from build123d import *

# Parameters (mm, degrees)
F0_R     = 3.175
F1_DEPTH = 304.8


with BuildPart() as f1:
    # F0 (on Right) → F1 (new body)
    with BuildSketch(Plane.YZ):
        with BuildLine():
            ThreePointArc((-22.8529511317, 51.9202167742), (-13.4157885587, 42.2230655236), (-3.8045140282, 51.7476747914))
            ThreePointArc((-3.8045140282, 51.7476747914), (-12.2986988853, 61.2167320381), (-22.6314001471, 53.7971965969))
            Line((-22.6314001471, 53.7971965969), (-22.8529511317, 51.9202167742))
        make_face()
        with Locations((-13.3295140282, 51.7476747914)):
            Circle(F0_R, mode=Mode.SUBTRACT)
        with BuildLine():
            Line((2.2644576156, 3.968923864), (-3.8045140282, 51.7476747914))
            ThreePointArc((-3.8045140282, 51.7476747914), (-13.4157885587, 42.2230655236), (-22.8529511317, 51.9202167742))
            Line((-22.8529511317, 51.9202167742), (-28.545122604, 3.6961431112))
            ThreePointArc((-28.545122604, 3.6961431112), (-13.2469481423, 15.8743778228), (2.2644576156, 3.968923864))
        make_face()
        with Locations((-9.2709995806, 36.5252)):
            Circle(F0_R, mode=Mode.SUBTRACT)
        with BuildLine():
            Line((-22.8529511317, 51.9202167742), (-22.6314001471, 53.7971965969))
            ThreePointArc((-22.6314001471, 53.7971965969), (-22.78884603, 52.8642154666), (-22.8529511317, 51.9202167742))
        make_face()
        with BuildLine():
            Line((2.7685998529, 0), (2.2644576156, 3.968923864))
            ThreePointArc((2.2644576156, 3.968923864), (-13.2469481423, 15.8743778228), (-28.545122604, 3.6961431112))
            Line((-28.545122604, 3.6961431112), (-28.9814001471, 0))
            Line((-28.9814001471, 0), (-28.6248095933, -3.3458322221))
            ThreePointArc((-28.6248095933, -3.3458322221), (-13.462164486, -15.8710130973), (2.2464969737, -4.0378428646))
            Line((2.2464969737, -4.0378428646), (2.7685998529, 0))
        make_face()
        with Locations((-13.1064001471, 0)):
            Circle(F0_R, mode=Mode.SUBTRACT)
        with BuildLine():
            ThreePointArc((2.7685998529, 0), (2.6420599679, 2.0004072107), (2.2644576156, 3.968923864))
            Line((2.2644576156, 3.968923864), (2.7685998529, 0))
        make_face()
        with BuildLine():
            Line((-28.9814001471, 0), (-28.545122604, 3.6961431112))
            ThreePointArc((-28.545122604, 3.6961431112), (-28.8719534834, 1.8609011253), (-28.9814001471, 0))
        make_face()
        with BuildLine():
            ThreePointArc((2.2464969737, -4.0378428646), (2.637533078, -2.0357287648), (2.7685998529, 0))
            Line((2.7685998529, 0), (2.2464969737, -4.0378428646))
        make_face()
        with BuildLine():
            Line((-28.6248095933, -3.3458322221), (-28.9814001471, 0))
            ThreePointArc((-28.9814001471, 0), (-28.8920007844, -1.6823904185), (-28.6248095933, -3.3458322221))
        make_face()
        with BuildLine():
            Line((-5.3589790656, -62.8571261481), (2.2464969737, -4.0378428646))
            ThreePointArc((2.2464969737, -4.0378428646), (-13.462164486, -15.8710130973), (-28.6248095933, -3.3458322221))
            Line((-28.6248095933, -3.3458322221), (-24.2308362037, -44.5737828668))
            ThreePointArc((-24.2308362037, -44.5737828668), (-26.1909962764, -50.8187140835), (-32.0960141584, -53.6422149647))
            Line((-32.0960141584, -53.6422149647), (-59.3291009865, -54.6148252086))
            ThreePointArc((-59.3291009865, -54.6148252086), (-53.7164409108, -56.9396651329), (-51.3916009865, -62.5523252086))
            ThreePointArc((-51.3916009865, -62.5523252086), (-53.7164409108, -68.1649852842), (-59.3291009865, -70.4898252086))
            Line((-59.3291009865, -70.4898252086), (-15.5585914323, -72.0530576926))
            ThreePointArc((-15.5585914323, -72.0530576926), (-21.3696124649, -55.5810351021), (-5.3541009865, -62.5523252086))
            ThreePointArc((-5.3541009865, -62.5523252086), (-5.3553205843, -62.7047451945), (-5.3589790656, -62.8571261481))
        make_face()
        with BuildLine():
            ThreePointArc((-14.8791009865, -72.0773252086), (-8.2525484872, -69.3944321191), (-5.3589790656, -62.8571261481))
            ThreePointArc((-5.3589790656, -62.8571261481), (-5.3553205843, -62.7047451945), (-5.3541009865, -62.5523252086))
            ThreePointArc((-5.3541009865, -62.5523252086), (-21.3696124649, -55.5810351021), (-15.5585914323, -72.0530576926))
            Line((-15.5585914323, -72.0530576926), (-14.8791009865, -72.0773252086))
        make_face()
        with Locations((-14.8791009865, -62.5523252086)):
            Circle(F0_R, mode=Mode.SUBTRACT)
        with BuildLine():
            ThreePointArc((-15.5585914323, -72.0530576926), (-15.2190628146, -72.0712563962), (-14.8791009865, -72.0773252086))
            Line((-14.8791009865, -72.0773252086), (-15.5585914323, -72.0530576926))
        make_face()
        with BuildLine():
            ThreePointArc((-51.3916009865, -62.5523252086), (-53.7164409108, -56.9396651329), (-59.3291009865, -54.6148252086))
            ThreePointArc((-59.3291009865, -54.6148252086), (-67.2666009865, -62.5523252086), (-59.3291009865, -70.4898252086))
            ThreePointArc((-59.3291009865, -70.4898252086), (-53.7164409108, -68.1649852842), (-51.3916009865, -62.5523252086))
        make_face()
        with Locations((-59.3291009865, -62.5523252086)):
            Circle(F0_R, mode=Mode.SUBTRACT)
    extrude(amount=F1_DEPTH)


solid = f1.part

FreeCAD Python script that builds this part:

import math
import FreeCAD as App
import Part
import Sketcher

V = App.Vector
Q = App.Units.Quantity

doc = App.newDocument("Part")
body = doc.addObject("PartDesign::Body", "Body")

sketch1 = body.newObject("Sketcher::SketchObject", "Sketch")
sketch1.AttachmentSupport = (doc.getObject("YZ_Plane"), [""])
sketch1.MapMode = "FlatFace"
sketch1.addGeometry([
    Part.ArcOfCircle(Part.Circle(V(-13.329514, 51.747675, 0), V(0, 0, 1), 9.525), math.radians(0), math.radians(167.574329)),
    Part.ArcOfCircle(Part.Circle(V(-13.329514, 51.747675, 0), V(0, 0, 1), 9.525), math.radians(167.574329), math.radians(178.962051)),
    Part.LineSegment(V(-22.852951, 51.920217, 0), V(-28.545123, 3.696143, 0)),
    Part.ArcOfCircle(Part.Circle(V(-13.1064, 0, 0), V(0, 0, 1), 15.875), math.radians(166.53638), math.radians(180)),
    Part.ArcOfCircle(Part.Circle(V(-13.1064, 0, 0), V(0, 0, 1), 15.875), math.radians(180), math.radians(192.166957)),
    Part.LineSegment(V(-28.62481, -3.345832, 0), V(-24.230836, -44.573783, 0)),
    Part.ArcOfCircle(Part.Circle(V(-32.388835, -45.443242, 0), V(0, 0, 1), 8.2042), math.radians(-87.954592), math.radians(6.083479)),
    Part.LineSegment(V(-32.096014, -53.642215, 0), V(-59.329101, -54.614825, 0)),
    Part.ArcOfCircle(Part.Circle(V(-59.329101, -62.552325, 0), V(0, 0, 1), 7.9375), math.radians(90), math.radians(270)),
    Part.LineSegment(V(-59.329101, -70.489825, 0), V(-15.558591, -72.053058, 0)),
    Part.ArcOfCircle(Part.Circle(V(-14.879101, -62.552325, 0), V(0, 0, 1), 9.525), math.radians(-94.090817), math.radians(-90)),
    Part.ArcOfCircle(Part.Circle(V(-14.879101, -62.552325, 0), V(0, 0, 1), 9.525), math.radians(-90), math.radians(-1.833784)),
    Part.LineSegment(V(-5.358979, -62.857126, 0), V(2.246497, -4.037843, 0)),
    Part.ArcOfCircle(Part.Circle(V(-13.1064, 0, 0), V(0, 0, 1), 15.875), math.radians(-14.73521), math.radians(0)),
    Part.ArcOfCircle(Part.Circle(V(-13.1064, 0, 0), V(0, 0, 1), 15.875), math.radians(0), math.radians(14.47816)),
    Part.LineSegment(V(2.264458, 3.968924, 0), V(-3.804514, 51.747675, 0)),
    Part.Circle(V(-59.329101, -62.552325, 0), V(0, 0, 1), 3.175),
    Part.Circle(V(-14.879101, -62.552325, 0), V(0, 0, 1), 3.175),
    Part.Circle(V(-13.1064, 0, 0), V(0, 0, 1), 3.175),
    Part.Circle(V(-9.271, 36.5252, 0), V(0, 0, 1), 3.175),
    Part.Circle(V(-13.329514, 51.747675, 0), V(0, 0, 1), 3.175),
], False)
sketch1.addConstraint([
    Sketcher.Constraint("Coincident", 0, 2, 1, 1),
    Sketcher.Constraint("Coincident", 1, 2, 2, 1),
    Sketcher.Constraint("Coincident", 2, 2, 3, 1),
    Sketcher.Constraint("Coincident", 3, 2, 4, 1),
    Sketcher.Constraint("Coincident", 4, 2, 5, 1),
    Sketcher.Constraint("Coincident", 5, 2, 6, 2),
    Sketcher.Constraint("Coincident", 6, 1, 7, 1),
    Sketcher.Constraint("Coincident", 7, 2, 8, 1),
    Sketcher.Constraint("Coincident", 8, 2, 9, 1),
    Sketcher.Constraint("Coincident", 9, 2, 10, 1),
    Sketcher.Constraint("Coincident", 10, 2, 11, 1),
    Sketcher.Constraint("Coincident", 11, 2, 12, 1),
    Sketcher.Constraint("Coincident", 12, 2, 13, 1),
    Sketcher.Constraint("Coincident", 13, 2, 14, 1),
    Sketcher.Constraint("Coincident", 14, 2, 15, 1),
    Sketcher.Constraint("Coincident", 15, 2, 0, 1),
    Sketcher.Constraint("Coincident", 1, 3, 0, 3),
    Sketcher.Constraint("Coincident", 4, 3, 3, 3),
    Sketcher.Constraint("Coincident", 11, 3, 10, 3),
    Sketcher.Constraint("Coincident", 13, 3, 3, 3),
    Sketcher.Constraint("Coincident", 14, 3, 3, 3),
    Sketcher.Constraint("Coincident", 16, 3, 8, 3),
    Sketcher.Constraint("Coincident", 17, 3, 10, 3),
    Sketcher.Constraint("Coincident", 18, 3, 3, 3),
    Sketcher.Constraint("Coincident", 20, 3, 0, 3),
    Sketcher.Constraint("PointOnObject", 3, 3, -1),
    Sketcher.Constraint("PointOnObject", 3, 2, -1),
    Sketcher.Constraint("PointOnObject", 13, 2, -1),
    Sketcher.Constraint("Diameter", 16, Q("0.25 in")),
    Sketcher.Constraint("Diameter", 17, Q("0.25 in")),
    Sketcher.Constraint("Diameter", 18, Q("0.25 in")),
    Sketcher.Constraint("Diameter", 19, Q("0.25 in")),
    Sketcher.Constraint("Diameter", 20, Q("0.25 in")),
    Sketcher.Constraint("Radius", 0, Q("0.375 in")),
    Sketcher.Constraint("Radius", 3, Q("0.625 in")),
    Sketcher.Constraint("Radius", 6, Q("0.323 in")),
    Sketcher.Constraint("Radius", 8, Q("0.3125 in")),
    Sketcher.Constraint("Radius", 10, Q("0.375 in")),
    Sketcher.Constraint("Radius", 13, Q("0.625 in")),
    Sketcher.Constraint("DistanceY", 8, 3, 0, 3, Q("4.5 in")),
    Sketcher.Constraint("DistanceY", 10, 3, 0, 3, Q("4.5 in")),
    Sketcher.Constraint("DistanceX", 8, 3, 10, 3, Q("1.75 in")),
    Sketcher.Constraint("DistanceY", 19, 3, 0, 2, Q("0.6799999 in")),
    Sketcher.Constraint("DistanceX", 3, 3, -1, 1, Q("0.516 in")),
    Sketcher.Constraint("DistanceX", 19, 3, -1, 1, Q("0.365 in")),
    Sketcher.Constraint("DistanceY", -1, 1, 19, 3, Q("1.438 in")),
    Sketcher.Constraint("DistanceX", 0, 2, -1, 1, Q("0.891 in")),
    Sketcher.Constraint("DistanceY", 11, 2, 10, 3, Q("0.012 in")),
    Sketcher.Constraint("DistanceX", 8, 3, -1, 1, 59.329101),
    Sketcher.Constraint("DistanceX", 7, 2, -1, 1, 59.329101),
    Sketcher.Constraint("DistanceX", 8, 2, -1, 1, 59.329101),
    Sketcher.Constraint("DistanceX", 10, 2, -1, 1, 14.879101),
    Sketcher.Constraint("DistanceX", 6, 3, 5, 2, 8.157998),
    Sketcher.Constraint("Distance", 2, 48.558852),
    Sketcher.Constraint("Distance", 5, 41.461439),
    Sketcher.Constraint("Distance", 7, 27.250449),
    Sketcher.Constraint("Distance", 12, 59.308948),
    Sketcher.Constraint("DistanceX", 1, 2, -1, 1, 22.852951),
    Sketcher.Constraint("DistanceX", 4, 2, -1, 1, 28.62481),
    Sketcher.Constraint("DistanceX", 9, 2, -1, 1, 15.558591),
    Sketcher.Constraint("DistanceX", 6, 3, 0, 3, 19.059321),
    Sketcher.Constraint("DistanceY", 0, 3, 0, 2, 2.049522),
    Sketcher.Constraint("DistanceX", 12, 2, 14, 2, 0.017961),
    Sketcher.Constraint("DistanceY", 15, 2, 0, 2, 2.049522),
])
pad1 = body.newObject("PartDesign::Pad", "Pad")
pad1.Profile = sketch1
pad1.Length = Q("12 in")

doc.recompute()
